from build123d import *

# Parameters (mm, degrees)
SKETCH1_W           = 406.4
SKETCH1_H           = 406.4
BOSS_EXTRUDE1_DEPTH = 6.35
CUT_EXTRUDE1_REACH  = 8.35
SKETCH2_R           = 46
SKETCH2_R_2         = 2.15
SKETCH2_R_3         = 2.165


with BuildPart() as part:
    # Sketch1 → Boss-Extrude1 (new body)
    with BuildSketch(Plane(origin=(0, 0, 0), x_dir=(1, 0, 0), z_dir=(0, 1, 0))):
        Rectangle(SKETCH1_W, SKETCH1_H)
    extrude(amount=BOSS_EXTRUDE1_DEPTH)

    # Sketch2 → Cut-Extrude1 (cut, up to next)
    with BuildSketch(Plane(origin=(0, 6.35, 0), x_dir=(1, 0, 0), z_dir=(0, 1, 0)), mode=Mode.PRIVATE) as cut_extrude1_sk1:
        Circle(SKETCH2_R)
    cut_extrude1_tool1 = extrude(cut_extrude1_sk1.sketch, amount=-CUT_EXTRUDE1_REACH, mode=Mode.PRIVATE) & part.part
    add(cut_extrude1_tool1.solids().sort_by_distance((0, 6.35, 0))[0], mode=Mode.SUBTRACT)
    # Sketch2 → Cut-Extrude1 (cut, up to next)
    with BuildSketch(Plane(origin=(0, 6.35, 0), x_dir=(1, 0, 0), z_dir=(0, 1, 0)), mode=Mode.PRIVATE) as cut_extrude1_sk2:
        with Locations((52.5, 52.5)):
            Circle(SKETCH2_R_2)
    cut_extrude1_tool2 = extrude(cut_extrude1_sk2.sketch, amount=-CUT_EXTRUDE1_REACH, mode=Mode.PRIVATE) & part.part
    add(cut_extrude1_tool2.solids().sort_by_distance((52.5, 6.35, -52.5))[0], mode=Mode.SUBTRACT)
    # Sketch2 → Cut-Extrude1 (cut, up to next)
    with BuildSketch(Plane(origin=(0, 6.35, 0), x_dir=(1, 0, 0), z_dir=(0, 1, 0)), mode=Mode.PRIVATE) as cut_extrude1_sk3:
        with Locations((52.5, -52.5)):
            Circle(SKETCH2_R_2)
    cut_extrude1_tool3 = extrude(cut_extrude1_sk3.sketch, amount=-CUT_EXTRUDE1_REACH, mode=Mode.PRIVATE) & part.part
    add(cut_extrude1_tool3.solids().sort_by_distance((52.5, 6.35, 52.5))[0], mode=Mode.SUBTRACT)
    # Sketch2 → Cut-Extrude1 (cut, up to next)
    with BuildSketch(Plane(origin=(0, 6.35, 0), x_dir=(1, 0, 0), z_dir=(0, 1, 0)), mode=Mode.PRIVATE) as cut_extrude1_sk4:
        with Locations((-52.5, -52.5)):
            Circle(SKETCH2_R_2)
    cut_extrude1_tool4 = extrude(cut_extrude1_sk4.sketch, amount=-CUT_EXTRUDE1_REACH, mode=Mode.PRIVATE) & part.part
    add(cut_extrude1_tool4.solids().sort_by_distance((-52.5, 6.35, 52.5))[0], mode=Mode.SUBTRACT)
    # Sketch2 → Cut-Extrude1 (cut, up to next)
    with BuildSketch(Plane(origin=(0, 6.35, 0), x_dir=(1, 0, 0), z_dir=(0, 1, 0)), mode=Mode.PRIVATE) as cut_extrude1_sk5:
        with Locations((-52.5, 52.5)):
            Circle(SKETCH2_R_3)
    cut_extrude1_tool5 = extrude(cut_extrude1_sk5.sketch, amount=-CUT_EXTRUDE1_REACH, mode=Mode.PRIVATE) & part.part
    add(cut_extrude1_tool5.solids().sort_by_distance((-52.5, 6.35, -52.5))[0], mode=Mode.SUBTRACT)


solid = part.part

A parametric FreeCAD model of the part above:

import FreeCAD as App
import Part
import Sketcher
from FreeCAD import Vector
Q = App.Units.Quantity

doc = App.newDocument("Part")
params = doc.addObject("Spreadsheet::Sheet", "Params")
for row, (alias, value) in enumerate([
    ("sketch1_width", "406.4 mm"),
    ("pad1_length", "6.35 mm"),
    ("sketch2_diameter", "92 mm"),
    ("sketch3_diameter", "4.3 mm"),
    ("sketch4_diameter", "4.3 mm"),
    ("sketch5_diameter", "4.3 mm"),
    ("sketch6_diameter", "4.33 mm"),
], start=1):
    params.set(f"A{row}", alias)
    params.set(f"B{row}", "=" + value)
    params.setAlias(f"B{row}", alias)

body = doc.addObject("PartDesign::Body", "Body")

# Sketch on XZ plane
sketch1 = body.newObject("Sketcher::SketchObject", "Sketch")
sketch1.AttachmentSupport = (doc.getObject("XZ_Plane"), [""])
sketch1.MapMode = "FlatFace"
sketch1.addGeometry(Part.LineSegment(Vector(-203.2, -203.2, 0), Vector(-203.2, 203.2, 0)), False)
sketch1.addGeometry(Part.LineSegment(Vector(-203.2, 203.2, 0), Vector(203.2, 203.2, 0)), False)
sketch1.addGeometry(Part.LineSegment(Vector(203.2, 203.2, 0), Vector(203.2, -203.2, 0)), False)
sketch1.addGeometry(Part.LineSegment(Vector(203.2, -203.2, 0), Vector(-203.2, -203.2, 0)), False)
sketch1.addConstraint(Sketcher.Constraint("Coincident", 0, 2, 1, 1))
sketch1.addConstraint(Sketcher.Constraint("Coincident", 1, 2, 2, 1))
sketch1.addConstraint(Sketcher.Constraint("Coincident", 2, 2, 3, 1))
sketch1.addConstraint(Sketcher.Constraint("Coincident", 3, 2, 0, 1))
sketch1.addConstraint(Sketcher.Constraint("Vertical", 0))
sketch1.addConstraint(Sketcher.Constraint("Horizontal", 1))
sketch1.addConstraint(Sketcher.Constraint("Vertical", 2))
sketch1.addConstraint(Sketcher.Constraint("Horizontal", 3))
sketch1.addConstraint(Sketcher.Constraint("Symmetric", 0, 2, 2, 2, -1, 1))
sketch1.addConstraint(Sketcher.Constraint("Equal", 3, 0))
sketch1.addConstraint(Sketcher.Constraint("DistanceX", 1, 1, 1, 2, Q("406.4 mm")))
sketch1.setExpression("Constraints[10]", "Params.sketch1_width")
pad1 = body.newObject("PartDesign::Pad", "Pad")
pad1.Profile = sketch1
pad1.setExpression("Length", "Params.pad1_length")
pad1.Reversed = True

# Sketch on XZ plane
sketch2 = body.newObject("Sketcher::SketchObject", "Sketch001")
sketch2.AttachmentSupport = (doc.getObject("XZ_Plane"), [""])
sketch2.MapMode = "FlatFace"
sketch2.AttachmentOffset = App.Placement(Vector(0, 0, -6.35), App.Rotation())
sketch2.addGeometry(Part.Circle(Vector(0, 0, 0), Vector(0, 0, 1), 46), False)
sketch2.addConstraint(Sketcher.Constraint("Coincident", 0, 3, -1, 1))
sketch2.addConstraint(Sketcher.Constraint("Diameter", 0, Q("92 mm")))
sketch2.setExpression("Constraints[1]", "Params.sketch2_diameter")
pocket1 = body.newObject("PartDesign::Pocket", "Pocket")
pocket1.Profile = sketch2
pocket1.Type = "UpToFirst"
pocket1.Reversed = True

# Sketch on XZ plane
sketch3 = body.newObject("Sketcher::SketchObject", "Sketch002")
sketch3.AttachmentSupport = (doc.getObject("XZ_Plane"), [""])
sketch3.MapMode = "FlatFace"
sketch3.AttachmentOffset = App.Placement(Vector(0, 0, -6.35), App.Rotation())
sketch3.addGeometry(Part.Circle(Vector(52.5, -52.5, 0), Vector(0, 0, 1), 2.15), False)
sketch3.addConstraint(Sketcher.Constraint("Diameter", 0, Q("4.3 mm")))
sketch3.addConstraint(Sketcher.Constraint("DistanceX", -1, 1, 0, 3, Q("52.5 mm")))
sketch3.addConstraint(Sketcher.Constraint("DistanceY", 0, 3, -1, 1, Q("52.5 mm")))
sketch3.setExpression("Constraints[0]", "Params.sketch3_diameter")
pocket2 = body.newObject("PartDesign::Pocket", "Pocket001")
pocket2.Profile = sketch3
pocket2.Type = "UpToFirst"
pocket2.Reversed = True

# Sketch on XZ plane
sketch4 = body.newObject("Sketcher::SketchObject", "Sketch003")
sketch4.AttachmentSupport = (doc.getObject("XZ_Plane"), [""])
sketch4.MapMode = "FlatFace"
sketch4.AttachmentOffset = App.Placement(Vector(0, 0, -6.35), App.Rotation())
sketch4.addGeometry(Part.Circle(Vector(52.5, 52.5, 0), Vector(0, 0, 1), 2.15), False)
sketch4.addConstraint(Sketcher.Constraint("Diameter", 0, Q("4.3 mm")))
sketch4.addConstraint(Sketcher.Constraint("DistanceX", -1, 1, 0, 3, Q("52.5 mm")))
sketch4.addConstraint(Sketcher.Constraint("DistanceY", -1, 1, 0, 3, Q("52.5 mm")))
sketch4.setExpression("Constraints[0]", "Params.sketch4_diameter")
pocket3 = body.newObject("PartDesign::Pocket", "Pocket002")
pocket3.Profile = sketch4
pocket3.Type = "UpToFirst"
pocket3.Reversed = True

# Sketch on XZ plane
sketch5 = body.newObject("Sketcher::SketchObject", "Sketch004")
sketch5.AttachmentSupport = (doc.getObject("XZ_Plane"), [""])
sketch5.MapMode = "FlatFace"
sketch5.AttachmentOffset = App.Placement(Vector(0, 0, -6.35), App.Rotation())
sketch5.addGeometry(Part.Circle(Vector(-52.5, 52.5, 0), Vector(0, 0, 1), 2.15), False)
sketch5.addConstraint(Sketcher.Constraint("Diameter", 0, Q("4.3 mm")))
sketch5.addConstraint(Sketcher.Constraint("DistanceX", 0, 3, -1, 1, Q("52.5 mm")))
sketch5.addConstraint(Sketcher.Constraint("DistanceY", -1, 1, 0, 3, Q("52.5 mm")))
sketch5.setExpression("Constraints[0]", "Params.sketch5_diameter")
pocket4 = body.newObject("PartDesign::Pocket", "Pocket003")
pocket4.Profile = sketch5
pocket4.Type = "UpToFirst"
pocket4.Reversed = True

# Sketch on XZ plane
sketch6 = body.newObject("Sketcher::SketchObject", "Sketch005")
sketch6.AttachmentSupport = (doc.getObject("XZ_Plane"), [""])
sketch6.MapMode = "FlatFace"
sketch6.AttachmentOffset = App.Placement(Vector(0, 0, -6.35), App.Rotation())
sketch6.addGeometry(Part.Circle(Vector(-52.5, -52.5, 0), Vector(0, 0, 1), 2.165), False)
sketch6.addConstraint(Sketcher.Constraint("Diameter", 0, Q("4.33 mm")))
sketch6.addConstraint(Sketcher.Constraint("DistanceX", 0, 3, -1, 1, Q("52.5 mm")))
sketch6.addConstraint(Sketcher.Constraint("DistanceY", 0, 3, -1, 1, Q("52.5 mm")))
sketch6.setExpression("Constraints[0]", "Params.sketch6_diameter")
pocket5 = body.newObject("PartDesign::Pocket", "Pocket004")
pocket5.Profile = sketch6
pocket5.Type = "UpToFirst"
pocket5.Reversed = True

doc.recompute()
